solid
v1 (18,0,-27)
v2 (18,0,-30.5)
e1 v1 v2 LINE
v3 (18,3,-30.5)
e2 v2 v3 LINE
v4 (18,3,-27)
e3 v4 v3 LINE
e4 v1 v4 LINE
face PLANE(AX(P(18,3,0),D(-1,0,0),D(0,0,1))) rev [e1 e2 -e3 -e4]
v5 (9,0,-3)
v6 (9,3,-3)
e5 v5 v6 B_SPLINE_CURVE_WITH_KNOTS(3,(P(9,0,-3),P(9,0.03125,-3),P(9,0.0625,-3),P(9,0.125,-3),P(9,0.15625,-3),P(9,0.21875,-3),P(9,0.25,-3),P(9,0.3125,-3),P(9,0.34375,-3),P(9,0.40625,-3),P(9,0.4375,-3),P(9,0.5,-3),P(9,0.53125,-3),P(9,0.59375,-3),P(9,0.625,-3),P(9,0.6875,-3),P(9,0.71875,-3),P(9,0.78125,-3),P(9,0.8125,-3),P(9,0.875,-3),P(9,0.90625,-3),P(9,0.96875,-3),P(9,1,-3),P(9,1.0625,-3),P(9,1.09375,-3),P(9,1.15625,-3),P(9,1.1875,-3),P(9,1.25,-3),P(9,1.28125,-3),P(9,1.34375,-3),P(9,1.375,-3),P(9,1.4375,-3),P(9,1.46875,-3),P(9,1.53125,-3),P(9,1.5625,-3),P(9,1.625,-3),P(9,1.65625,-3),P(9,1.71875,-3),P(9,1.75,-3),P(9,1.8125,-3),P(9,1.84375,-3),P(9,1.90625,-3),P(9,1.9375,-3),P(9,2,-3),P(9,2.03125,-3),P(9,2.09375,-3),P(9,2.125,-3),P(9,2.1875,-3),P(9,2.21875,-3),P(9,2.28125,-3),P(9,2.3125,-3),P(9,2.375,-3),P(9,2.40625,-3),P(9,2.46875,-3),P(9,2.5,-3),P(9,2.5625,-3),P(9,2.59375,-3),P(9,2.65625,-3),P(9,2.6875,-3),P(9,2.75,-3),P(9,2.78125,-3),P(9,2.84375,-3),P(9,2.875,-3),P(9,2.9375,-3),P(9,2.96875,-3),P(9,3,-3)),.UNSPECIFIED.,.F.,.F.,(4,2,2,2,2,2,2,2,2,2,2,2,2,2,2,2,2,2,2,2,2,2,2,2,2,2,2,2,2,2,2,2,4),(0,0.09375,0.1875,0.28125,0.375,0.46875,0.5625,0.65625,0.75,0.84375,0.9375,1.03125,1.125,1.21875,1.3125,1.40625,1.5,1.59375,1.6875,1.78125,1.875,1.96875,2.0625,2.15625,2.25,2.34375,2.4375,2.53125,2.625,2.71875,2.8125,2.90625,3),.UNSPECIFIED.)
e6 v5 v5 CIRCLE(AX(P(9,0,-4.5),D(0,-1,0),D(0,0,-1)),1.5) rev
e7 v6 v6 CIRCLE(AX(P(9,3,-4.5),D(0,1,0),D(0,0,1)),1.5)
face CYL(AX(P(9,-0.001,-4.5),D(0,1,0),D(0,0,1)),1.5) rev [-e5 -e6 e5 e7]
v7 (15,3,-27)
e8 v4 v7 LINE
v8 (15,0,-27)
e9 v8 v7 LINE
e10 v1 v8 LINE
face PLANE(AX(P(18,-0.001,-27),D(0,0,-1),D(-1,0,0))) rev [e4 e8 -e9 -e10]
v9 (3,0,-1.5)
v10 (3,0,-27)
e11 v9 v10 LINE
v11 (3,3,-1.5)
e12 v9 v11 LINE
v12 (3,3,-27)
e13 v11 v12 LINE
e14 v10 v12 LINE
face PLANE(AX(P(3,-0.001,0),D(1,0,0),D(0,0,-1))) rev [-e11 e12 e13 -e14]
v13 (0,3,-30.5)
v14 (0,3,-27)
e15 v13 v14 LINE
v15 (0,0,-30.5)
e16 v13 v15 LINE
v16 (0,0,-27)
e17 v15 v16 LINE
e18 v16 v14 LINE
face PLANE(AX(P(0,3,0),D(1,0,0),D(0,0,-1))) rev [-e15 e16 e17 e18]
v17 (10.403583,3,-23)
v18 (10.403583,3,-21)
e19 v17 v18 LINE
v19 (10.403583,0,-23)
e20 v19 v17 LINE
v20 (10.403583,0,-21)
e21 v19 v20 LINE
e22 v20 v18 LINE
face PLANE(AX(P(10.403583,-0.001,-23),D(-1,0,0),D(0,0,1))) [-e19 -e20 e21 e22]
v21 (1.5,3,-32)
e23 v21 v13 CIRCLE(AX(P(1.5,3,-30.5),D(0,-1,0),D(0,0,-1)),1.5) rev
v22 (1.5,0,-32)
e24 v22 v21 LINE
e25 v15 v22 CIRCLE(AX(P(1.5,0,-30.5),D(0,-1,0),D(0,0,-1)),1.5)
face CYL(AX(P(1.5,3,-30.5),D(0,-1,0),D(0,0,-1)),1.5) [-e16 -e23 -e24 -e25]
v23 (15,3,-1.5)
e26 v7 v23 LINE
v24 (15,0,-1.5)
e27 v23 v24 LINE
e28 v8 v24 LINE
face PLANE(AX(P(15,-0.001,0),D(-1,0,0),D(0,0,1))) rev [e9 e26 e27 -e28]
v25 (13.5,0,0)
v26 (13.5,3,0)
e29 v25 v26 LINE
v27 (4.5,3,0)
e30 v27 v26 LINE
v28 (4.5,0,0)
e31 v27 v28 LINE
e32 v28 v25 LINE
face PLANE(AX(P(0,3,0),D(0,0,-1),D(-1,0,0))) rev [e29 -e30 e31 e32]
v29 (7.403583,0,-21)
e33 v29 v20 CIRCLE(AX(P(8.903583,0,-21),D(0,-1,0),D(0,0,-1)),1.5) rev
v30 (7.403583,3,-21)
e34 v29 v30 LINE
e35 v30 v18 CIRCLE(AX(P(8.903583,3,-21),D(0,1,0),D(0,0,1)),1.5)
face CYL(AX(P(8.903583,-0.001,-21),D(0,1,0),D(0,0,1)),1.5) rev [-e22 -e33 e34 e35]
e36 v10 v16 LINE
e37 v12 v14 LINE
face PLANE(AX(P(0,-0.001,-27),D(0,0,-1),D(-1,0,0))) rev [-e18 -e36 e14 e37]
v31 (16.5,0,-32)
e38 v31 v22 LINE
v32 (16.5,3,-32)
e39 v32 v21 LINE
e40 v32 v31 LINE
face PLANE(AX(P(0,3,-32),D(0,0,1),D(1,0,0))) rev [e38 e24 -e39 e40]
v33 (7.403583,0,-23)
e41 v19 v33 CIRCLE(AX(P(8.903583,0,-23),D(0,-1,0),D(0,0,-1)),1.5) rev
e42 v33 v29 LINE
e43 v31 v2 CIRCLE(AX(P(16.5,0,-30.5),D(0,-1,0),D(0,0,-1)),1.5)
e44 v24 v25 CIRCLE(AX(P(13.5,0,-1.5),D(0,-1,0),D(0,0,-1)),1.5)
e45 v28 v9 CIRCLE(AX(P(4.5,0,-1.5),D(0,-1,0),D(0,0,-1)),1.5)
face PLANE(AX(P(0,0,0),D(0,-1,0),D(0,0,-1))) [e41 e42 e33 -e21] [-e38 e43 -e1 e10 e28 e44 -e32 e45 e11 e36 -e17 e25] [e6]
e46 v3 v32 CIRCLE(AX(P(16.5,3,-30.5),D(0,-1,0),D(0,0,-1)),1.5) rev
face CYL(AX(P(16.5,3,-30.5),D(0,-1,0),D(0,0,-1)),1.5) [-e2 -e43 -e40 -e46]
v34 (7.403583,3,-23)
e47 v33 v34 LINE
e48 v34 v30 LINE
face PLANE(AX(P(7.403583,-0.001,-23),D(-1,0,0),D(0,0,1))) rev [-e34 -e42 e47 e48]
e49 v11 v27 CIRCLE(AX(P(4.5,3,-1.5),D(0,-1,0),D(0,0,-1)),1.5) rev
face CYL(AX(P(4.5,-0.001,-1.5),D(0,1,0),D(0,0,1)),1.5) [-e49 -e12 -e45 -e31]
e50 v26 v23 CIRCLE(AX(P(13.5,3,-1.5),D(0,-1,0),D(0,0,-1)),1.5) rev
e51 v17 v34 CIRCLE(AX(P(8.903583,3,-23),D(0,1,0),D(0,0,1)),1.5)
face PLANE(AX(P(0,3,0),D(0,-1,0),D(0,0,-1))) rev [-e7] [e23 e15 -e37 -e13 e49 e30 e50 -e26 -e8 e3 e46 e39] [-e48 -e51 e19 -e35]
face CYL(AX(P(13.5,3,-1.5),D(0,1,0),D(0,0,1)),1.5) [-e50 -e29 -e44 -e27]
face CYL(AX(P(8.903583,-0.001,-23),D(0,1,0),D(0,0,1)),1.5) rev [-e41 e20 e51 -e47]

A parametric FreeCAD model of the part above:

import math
import FreeCAD as App
import Part
import Sketcher
from FreeCAD import Vector


def edges_at(feature, points):
    """Names of the edges that pass closest to the given points."""
    edges = feature.Shape.Edges
    near = lambda p: min(range(len(edges)), key=lambda i: edges[i].distToShape(Part.Vertex(*p))[0])
    return sorted({f"Edge{near(p) + 1}" for p in points})


def add_polygon(sketch, points):
    """Adds a closed chain of lines whose ends are joined by coincident constraints."""
    first, n = sketch.GeometryCount, len(points)
    for a, b in zip(points, points[1:] + points[:1]):
        sketch.addGeometry(Part.LineSegment(App.Vector(*a, 0), App.Vector(*b, 0)), False)
    for i in range(n):
        sketch.addConstraint(Sketcher.Constraint("Coincident", first + i, 2, first + (i + 1) % n, 1))

doc = App.newDocument("Part")
body = doc.addObject("PartDesign::Body", "Body")

sketch1 = body.newObject("Sketcher::SketchObject", "Sketch")
sketch1.AttachmentSupport = (doc.getObject("XZ_Plane"), [""])
sketch1.MapMode = "FlatFace"
add_polygon(sketch1, [(0, -32), (0, 0), (18, 0), (18, -32)])
sketch1.addConstraint([
    Sketcher.Constraint("Vertical", 0),
    Sketcher.Constraint("Horizontal", 1),
    Sketcher.Constraint("Vertical", 2),
    Sketcher.Constraint("Horizontal", 3),
    Sketcher.Constraint("Coincident", 0, 2, -1, 1),
    Sketcher.Constraint("DistanceX", 1, 1, 1, 2, 18.0),
    Sketcher.Constraint("DistanceY", 0, 1, 0, 2, 32.0),
])
pad1 = body.newObject("PartDesign::Pad", "Pad")
pad1.Profile = sketch1
pad1.Length = 3
pad1.Reversed = True

sketch2 = body.newObject("Sketcher::SketchObject", "Sketch001")
sketch2.AttachmentSupport = (doc.getObject("XZ_Plane"), [""])
sketch2.MapMode = "FlatFace"
sketch2.AttachmentOffset = App.Placement(Vector(0, 0, -3), App.Rotation())
add_polygon(sketch2, [(0, -27), (0, 0), (3, 0), (3, -27)])
sketch2.addConstraint([
    Sketcher.Constraint("Vertical", 0),
    Sketcher.Constraint("Horizontal", 1),
    Sketcher.Constraint("Vertical", 2),
    Sketcher.Constraint("Horizontal", 3),
    Sketcher.Constraint("Coincident", 0, 2, -1, 1),
    Sketcher.Constraint("DistanceX", 1, 1, 1, 2, 3.0),
    Sketcher.Constraint("DistanceY", 0, 1, 0, 2, 27.0),
])
pocket1 = body.newObject("PartDesign::Pocket", "Pocket")
pocket1.Profile = sketch2
pocket1.Type = "UpToFirst"
pocket1.Reversed = True

sketch3 = body.newObject("Sketcher::SketchObject", "Sketch002")
sketch3.AttachmentSupport = (doc.getObject("XZ_Plane"), [""])
sketch3.MapMode = "FlatFace"
sketch3.AttachmentOffset = App.Placement(Vector(0, 0, -3), App.Rotation())
add_polygon(sketch3, [(15, -27), (15, 0), (18, 0), (18, -27)])
sketch3.addConstraint([
    Sketcher.Constraint("Vertical", 0),
    Sketcher.Constraint("Horizontal", 1),
    Sketcher.Constraint("Vertical", 2),
    Sketcher.Constraint("Horizontal", 3),
    Sketcher.Constraint("PointOnObject", 0, 2, -1),
    Sketcher.Constraint("DistanceX", 1, 1, 1, 2, 3.0),
    Sketcher.Constraint("DistanceY", 0, 1, 0, 2, 27.0),
    Sketcher.Constraint("DistanceX", -1, 1, 0, 2, 15.0),
])
pocket2 = body.newObject("PartDesign::Pocket", "Pocket001")
pocket2.Profile = sketch3
pocket2.Type = "UpToFirst"
pocket2.Reversed = True

sketch4 = body.newObject("Sketcher::SketchObject", "Sketch003")
sketch4.AttachmentSupport = (doc.getObject("XZ_Plane"), [""])
sketch4.MapMode = "FlatFace"
sketch4.AttachmentOffset = App.Placement(Vector(0, 0, -3), App.Rotation())
sketch4.addGeometry(Part.Circle(Vector(9, -4.5, 0), Vector(0, 0, 1), 1.5), False)
sketch4.addConstraint([
    Sketcher.Constraint("Diameter", 0, 3.0),
    Sketcher.Constraint("DistanceX", -1, 1, 0, 3, 9.0),
    Sketcher.Constraint("DistanceY", 0, 3, -1, 1, 4.5),
])
pocket3 = body.newObject("PartDesign::Pocket", "Pocket002")
pocket3.Profile = sketch4
pocket3.Type = "UpToFirst"
pocket3.Reversed = True
doc.recompute()

fillet = body.newObject("PartDesign::Fillet", "Fillet")
fillet.Base = (pocket3, edges_at(pocket3, [(0, 1.5, -32), (18, 1.5, -32)]))
fillet.Radius = 1.5
doc.recompute()

fillet2 = body.newObject("PartDesign::Fillet", "Fillet001")
fillet2.Base = (fillet, edges_at(fillet, [(3, 1.5, 0), (15, 1.5, 0)]))
fillet2.Radius = 1.5

sketch5 = body.newObject("Sketcher::SketchObject", "Sketch004")
sketch5.AttachmentSupport = (doc.getObject("XZ_Plane"), [""])
sketch5.MapMode = "FlatFace"
sketch5.AttachmentOffset = App.Placement(Vector(0, 0, -3), App.Rotation())
sketch5.addGeometry([
    Part.LineSegment(Vector(10.4, -21, 0), Vector(10.4, -23, 0)),
    Part.ArcOfCircle(Part.Circle(Vector(8.9, -23, 0), Vector(0, 0, 1), 1.5), math.radians(180), math.radians(360)),
    Part.LineSegment(Vector(7.4, -23, 0), Vector(7.4, -21, 0)),
    Part.ArcOfCircle(Part.Circle(Vector(8.9, -21, 0), Vector(0, 0, 1), 1.5), math.radians(0), math.radians(180)),
], False)
sketch5.addConstraint([
    Sketcher.Constraint("Tangent", 0, 2, 1, 2),
    Sketcher.Constraint("Tangent", 1, 1, 2, 1),
    Sketcher.Constraint("Tangent", 2, 2, 3, 2),
    Sketcher.Constraint("Tangent", 3, 1, 0, 1),
    Sketcher.Constraint("Vertical", 0),
    Sketcher.Constraint("Vertical", 2),
    Sketcher.Constraint("Radius", 1, 1.5),
    Sketcher.Constraint("DistanceY", 0, 2, 0, 1, 2.0),
    Sketcher.Constraint("DistanceY", 1, 3, -1, 1, 23.0),
    Sketcher.Constraint("DistanceX", -1, 1, 1, 3, 8.903583),
])
pocket4 = body.newObject("PartDesign::Pocket", "Pocket003")
pocket4.Profile = sketch5
pocket4.Type = "UpToFirst"
pocket4.Reversed = True

doc.recompute()
